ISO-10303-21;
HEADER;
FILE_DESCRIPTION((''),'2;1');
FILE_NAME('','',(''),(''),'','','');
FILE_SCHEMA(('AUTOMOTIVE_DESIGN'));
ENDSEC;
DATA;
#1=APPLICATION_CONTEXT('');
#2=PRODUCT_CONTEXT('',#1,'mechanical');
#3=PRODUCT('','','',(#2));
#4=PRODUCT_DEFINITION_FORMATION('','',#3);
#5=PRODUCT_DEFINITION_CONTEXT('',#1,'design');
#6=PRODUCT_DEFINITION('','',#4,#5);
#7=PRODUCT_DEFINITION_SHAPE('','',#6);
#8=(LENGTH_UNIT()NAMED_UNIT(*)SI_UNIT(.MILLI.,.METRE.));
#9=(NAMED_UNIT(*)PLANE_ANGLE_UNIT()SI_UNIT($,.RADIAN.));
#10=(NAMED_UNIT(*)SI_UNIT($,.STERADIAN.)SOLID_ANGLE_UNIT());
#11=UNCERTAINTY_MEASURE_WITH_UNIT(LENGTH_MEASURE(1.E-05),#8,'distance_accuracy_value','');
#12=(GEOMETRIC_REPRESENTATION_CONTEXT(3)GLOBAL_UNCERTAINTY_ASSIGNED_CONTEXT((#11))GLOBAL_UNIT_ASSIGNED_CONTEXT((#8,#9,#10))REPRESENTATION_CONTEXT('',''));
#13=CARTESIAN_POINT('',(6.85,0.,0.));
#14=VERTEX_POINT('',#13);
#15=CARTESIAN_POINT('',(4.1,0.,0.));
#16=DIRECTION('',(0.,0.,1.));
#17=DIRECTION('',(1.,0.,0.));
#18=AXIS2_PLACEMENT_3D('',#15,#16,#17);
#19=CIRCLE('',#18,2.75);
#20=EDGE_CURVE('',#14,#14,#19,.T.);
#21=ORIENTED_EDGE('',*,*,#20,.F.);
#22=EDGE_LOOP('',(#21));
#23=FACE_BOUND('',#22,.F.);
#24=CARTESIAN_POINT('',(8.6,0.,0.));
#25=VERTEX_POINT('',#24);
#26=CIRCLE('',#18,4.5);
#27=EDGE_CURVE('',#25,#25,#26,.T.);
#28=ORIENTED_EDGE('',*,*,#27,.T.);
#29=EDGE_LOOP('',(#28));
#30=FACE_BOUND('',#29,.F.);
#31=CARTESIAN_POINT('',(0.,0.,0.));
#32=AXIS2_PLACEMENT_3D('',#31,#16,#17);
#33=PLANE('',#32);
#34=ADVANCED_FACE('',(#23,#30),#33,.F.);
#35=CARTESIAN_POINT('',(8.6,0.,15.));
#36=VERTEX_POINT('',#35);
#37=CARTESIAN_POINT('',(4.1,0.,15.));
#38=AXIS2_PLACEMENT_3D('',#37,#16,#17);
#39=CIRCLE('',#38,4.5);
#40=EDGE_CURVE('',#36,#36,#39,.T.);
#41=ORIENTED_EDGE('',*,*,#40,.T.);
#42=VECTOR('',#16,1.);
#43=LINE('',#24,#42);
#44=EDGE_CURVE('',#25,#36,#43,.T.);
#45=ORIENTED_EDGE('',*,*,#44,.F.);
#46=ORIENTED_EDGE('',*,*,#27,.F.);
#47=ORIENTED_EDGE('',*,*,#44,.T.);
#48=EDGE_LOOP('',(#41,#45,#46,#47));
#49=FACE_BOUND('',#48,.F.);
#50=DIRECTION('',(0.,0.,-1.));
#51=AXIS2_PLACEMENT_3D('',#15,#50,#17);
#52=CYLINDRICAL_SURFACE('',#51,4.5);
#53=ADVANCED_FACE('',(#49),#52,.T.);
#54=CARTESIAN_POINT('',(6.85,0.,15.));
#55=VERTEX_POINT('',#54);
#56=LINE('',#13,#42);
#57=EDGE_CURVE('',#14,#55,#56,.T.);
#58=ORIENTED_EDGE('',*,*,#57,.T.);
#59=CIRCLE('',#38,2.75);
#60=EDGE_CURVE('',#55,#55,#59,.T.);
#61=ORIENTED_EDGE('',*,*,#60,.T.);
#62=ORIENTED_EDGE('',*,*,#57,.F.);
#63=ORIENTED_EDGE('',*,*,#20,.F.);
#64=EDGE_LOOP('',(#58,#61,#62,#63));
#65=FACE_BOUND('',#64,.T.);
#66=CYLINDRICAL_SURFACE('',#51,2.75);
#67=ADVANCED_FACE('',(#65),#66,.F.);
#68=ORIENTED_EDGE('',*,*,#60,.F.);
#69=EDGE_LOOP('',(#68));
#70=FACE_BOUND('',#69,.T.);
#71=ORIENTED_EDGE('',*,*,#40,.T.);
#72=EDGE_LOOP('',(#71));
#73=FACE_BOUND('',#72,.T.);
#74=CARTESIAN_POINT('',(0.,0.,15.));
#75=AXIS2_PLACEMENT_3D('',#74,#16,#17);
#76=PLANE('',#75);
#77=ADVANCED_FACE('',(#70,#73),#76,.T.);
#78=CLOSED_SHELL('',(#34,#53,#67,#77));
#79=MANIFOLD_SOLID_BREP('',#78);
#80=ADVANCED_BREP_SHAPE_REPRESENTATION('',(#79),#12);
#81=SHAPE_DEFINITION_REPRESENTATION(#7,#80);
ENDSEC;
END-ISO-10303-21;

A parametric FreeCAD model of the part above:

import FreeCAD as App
import Part
import Sketcher

V = App.Vector

doc = App.newDocument("Part")
body = doc.addObject("PartDesign::Body", "Body")

# Sketch on XY plane
sketch1 = body.newObject("Sketcher::SketchObject", "Sketch")
sketch1.AttachmentSupport = (doc.getObject("XY_Plane"), [""])
sketch1.MapMode = "FlatFace"
sketch1.addGeometry([
    Part.Circle(V(4.1, 0, 0), V(0, 0, 1), 4.5),
    Part.Circle(V(4.1, 0, 0), V(0, 0, 1), 2.8),
], False)
sketch1.addConstraint([
    Sketcher.Constraint("Coincident", 1, 3, 0, 3),
    Sketcher.Constraint("PointOnObject", 0, 3, -1),
    Sketcher.Constraint("Diameter", 0, 9.0),
    Sketcher.Constraint("Diameter", 1, 5.5),
    Sketcher.Constraint("DistanceX", -1, 1, 0, 3, 4.1),
])
pad1 = body.newObject("PartDesign::Pad", "Pad")
pad1.Profile = sketch1
pad1.Length = 15

doc.recompute()
